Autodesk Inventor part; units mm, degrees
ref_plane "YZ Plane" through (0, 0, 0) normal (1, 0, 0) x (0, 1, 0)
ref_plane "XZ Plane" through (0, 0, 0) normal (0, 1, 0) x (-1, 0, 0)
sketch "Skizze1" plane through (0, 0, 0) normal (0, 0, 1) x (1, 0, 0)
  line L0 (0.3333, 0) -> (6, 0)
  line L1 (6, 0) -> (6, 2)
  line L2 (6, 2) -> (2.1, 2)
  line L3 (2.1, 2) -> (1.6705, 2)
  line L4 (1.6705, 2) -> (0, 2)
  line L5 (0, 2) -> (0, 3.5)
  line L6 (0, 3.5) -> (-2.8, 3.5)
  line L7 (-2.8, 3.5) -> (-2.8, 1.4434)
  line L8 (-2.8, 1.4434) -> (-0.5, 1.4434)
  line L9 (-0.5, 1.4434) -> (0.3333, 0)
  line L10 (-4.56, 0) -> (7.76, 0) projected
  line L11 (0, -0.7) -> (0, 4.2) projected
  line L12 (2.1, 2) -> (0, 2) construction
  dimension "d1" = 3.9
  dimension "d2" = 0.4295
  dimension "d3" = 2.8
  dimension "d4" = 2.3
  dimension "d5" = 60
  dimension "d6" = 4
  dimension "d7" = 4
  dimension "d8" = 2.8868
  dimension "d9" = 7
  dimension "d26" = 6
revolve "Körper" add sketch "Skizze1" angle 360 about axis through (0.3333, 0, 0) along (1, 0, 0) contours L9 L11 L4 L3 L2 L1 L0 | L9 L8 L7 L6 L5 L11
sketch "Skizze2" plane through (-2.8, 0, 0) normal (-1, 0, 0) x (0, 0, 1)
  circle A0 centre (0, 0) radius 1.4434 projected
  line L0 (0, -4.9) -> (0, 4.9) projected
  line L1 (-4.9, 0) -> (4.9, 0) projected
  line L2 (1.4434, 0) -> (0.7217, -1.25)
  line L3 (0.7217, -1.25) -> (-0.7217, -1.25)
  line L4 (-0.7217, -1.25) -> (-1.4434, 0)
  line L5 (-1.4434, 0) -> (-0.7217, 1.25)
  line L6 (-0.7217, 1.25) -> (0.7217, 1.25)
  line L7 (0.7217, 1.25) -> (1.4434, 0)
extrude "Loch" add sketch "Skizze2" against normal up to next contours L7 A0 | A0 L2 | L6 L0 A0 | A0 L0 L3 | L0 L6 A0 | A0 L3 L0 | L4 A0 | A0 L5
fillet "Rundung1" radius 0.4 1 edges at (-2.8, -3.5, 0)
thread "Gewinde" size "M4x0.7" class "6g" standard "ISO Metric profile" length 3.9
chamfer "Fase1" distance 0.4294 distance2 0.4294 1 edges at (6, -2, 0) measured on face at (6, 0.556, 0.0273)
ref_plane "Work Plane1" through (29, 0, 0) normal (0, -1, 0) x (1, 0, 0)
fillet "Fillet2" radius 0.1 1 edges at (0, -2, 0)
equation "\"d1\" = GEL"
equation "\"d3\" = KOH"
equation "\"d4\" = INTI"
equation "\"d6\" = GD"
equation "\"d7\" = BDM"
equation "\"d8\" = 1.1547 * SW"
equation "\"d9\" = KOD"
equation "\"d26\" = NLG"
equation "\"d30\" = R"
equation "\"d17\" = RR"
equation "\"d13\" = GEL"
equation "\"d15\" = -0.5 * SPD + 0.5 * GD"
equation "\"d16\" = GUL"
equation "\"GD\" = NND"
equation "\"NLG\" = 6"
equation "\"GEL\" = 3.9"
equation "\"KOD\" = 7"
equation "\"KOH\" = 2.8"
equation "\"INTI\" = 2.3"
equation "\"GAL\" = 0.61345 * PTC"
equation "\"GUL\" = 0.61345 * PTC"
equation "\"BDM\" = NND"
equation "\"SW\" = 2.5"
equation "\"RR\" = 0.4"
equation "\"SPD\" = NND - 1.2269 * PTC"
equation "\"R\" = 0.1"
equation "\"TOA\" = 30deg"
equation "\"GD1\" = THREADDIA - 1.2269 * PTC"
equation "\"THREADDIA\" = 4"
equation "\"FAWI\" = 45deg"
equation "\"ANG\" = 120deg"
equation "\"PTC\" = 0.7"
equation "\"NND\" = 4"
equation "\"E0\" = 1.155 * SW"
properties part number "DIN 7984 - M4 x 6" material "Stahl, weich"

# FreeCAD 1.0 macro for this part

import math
import FreeCAD as App
import Part
import Sketcher
Q = App.Units.Quantity


def edges_at(feature, points):
    """Names of the edges that pass closest to the given points."""
    edges = feature.Shape.Edges
    near = lambda p: min(range(len(edges)), key=lambda i: edges[i].distToShape(Part.Vertex(*p))[0])
    return sorted({f"Edge{near(p) + 1}" for p in points})

doc = App.newDocument("Part")
body = doc.addObject("PartDesign::Body", "Body")

# Sketch on XY plane
sketch1 = body.newObject("Sketcher::SketchObject", "Sketch")
sketch1.AttachmentSupport = (doc.getObject("XY_Plane"), [""])
sketch1.MapMode = "FlatFace"
sketch1.addGeometry([
    Part.LineSegment(App.Vector(0.3333, 0, 0), App.Vector(6, 0, 0)),  # 0
    Part.LineSegment(App.Vector(6, 0, 0), App.Vector(6, 2, 0)),  # 1
    Part.LineSegment(App.Vector(6, 2, 0), App.Vector(0, 2, 0)),  # 2
    Part.LineSegment(App.Vector(0, 2, 0), App.Vector(0, 3.5, 0)),  # 3
    Part.LineSegment(App.Vector(0, 3.5, 0), App.Vector(-2.8, 3.5, 0)),  # 4
    Part.LineSegment(App.Vector(-2.8, 3.5, 0), App.Vector(-2.8, 1.4434, 0)),  # 5
    Part.LineSegment(App.Vector(-2.8, 1.4434, 0), App.Vector(-0.5, 1.4434, 0)),  # 6
    Part.LineSegment(App.Vector(-0.5, 1.4434, 0), App.Vector(0.3333, 0, 0)),  # 7
], False)
sketch1.addConstraint([
    Sketcher.Constraint("Coincident", 0, 2, 1, 1),
    Sketcher.Constraint("Coincident", 1, 2, 2, 1),
    Sketcher.Constraint("Coincident", 2, 2, 3, 1),
    Sketcher.Constraint("Coincident", 3, 2, 4, 1),
    Sketcher.Constraint("Coincident", 4, 2, 5, 1),
    Sketcher.Constraint("Coincident", 5, 2, 6, 1),
    Sketcher.Constraint("Coincident", 6, 2, 7, 1),
    Sketcher.Constraint("Coincident", 7, 2, 0, 1),
    Sketcher.Constraint("Horizontal", 0),
    Sketcher.Constraint("Vertical", 1),
    Sketcher.Constraint("Horizontal", 2),
    Sketcher.Constraint("Vertical", 3),
    Sketcher.Constraint("Horizontal", 4),
    Sketcher.Constraint("Vertical", 5),
    Sketcher.Constraint("Horizontal", 6),
    Sketcher.Constraint("PointOnObject", 0, 2, -1),
    Sketcher.Constraint("PointOnObject", 2, 2, -2),
    Sketcher.Constraint("DistanceX", 2, 2, 2, 1, Q("6 mm")),
    Sketcher.Constraint("DistanceX", 4, 2, 4, 1, Q("2.8 mm")),
    Sketcher.Constraint("DistanceX", 6, 1, 6, 2, Q("2.3 mm")),
    Sketcher.Constraint("DistanceY", 1, 1, 1, 2, Q("2 mm")),
    Sketcher.Constraint("DistanceY", 3, 1, 3, 2, Q("1.5 mm")),
    Sketcher.Constraint("DistanceX", 0, 1, 0, 2, Q("5.6667 mm")),
    Sketcher.Constraint("DistanceY", 5, 2, 5, 1, Q("2.0566 mm")),
])
revolution = body.newObject("PartDesign::Revolution", "Revolution")
revolution.Profile = sketch1
revolution.ReferenceAxis = (sketch1, ["H_Axis"])
revolution.Angle = 360

# Sketch on YZ plane
sketch2 = body.newObject("Sketcher::SketchObject", "Sketch001")
sketch2.AttachmentSupport = (doc.getObject("YZ_Plane"), [""])
sketch2.MapMode = "FlatFace"
sketch2.AttachmentOffset = App.Placement(App.Vector(0, 0, -2.8), App.Rotation())
sketch2.addGeometry([
    Part.LineSegment(App.Vector(1.25, 0.7217, 0), App.Vector(0, 1.4434, 0)),  # 0
    Part.ArcOfCircle(Part.Circle(App.Vector(0, 0, 0), App.Vector(0, 0, 1), 1.4434), math.radians(30.000418), math.radians(90)),  # 1
    Part.ArcOfCircle(Part.Circle(App.Vector(0, 0, 0), App.Vector(0, 0, 1), 1.4434), math.radians(90), math.radians(149.999582)),  # 2
    Part.LineSegment(App.Vector(0, 1.4434, 0), App.Vector(-1.25, 0.7217, 0)),  # 3
    Part.ArcOfCircle(Part.Circle(App.Vector(0, 0, 0), App.Vector(0, 0, 1), 1.4434), math.radians(-30.000418), math.radians(30.000418)),  # 4
    Part.LineSegment(App.Vector(1.25, 0.7217, 0), App.Vector(1.25, -0.7217, 0)),  # 5
    Part.LineSegment(App.Vector(-1.25, 0.7217, 0), App.Vector(-1.25, -0.7217, 0)),  # 6
    Part.ArcOfCircle(Part.Circle(App.Vector(0, 0, 0), App.Vector(0, 0, 1), 1.4434), math.radians(149.999582), math.radians(210.000418)),  # 7
    Part.LineSegment(App.Vector(-1.25, -0.7217, 0), App.Vector(0, -1.4434, 0)),  # 8
    Part.ArcOfCircle(Part.Circle(App.Vector(0, 0, 0), App.Vector(0, 0, 1), 1.4434), math.radians(-149.999582), math.radians(-90)),  # 9
    Part.ArcOfCircle(Part.Circle(App.Vector(0, 0, 0), App.Vector(0, 0, 1), 1.4434), math.radians(-90), math.radians(-30.000418)),  # 10
    Part.LineSegment(App.Vector(0, -1.4434, 0), App.Vector(1.25, -0.7217, 0)),  # 11
], False)
sketch2.addConstraint([
    Sketcher.Constraint("Coincident", 0, 1, 1, 1),
    Sketcher.Constraint("Coincident", 1, 2, 0, 2),
    Sketcher.Constraint("Coincident", 2, 1, 3, 1),
    Sketcher.Constraint("Coincident", 3, 2, 2, 2),
    Sketcher.Constraint("Coincident", 4, 1, 5, 2),
    Sketcher.Constraint("Coincident", 5, 1, 4, 2),
    Sketcher.Constraint("Coincident", 6, 1, 7, 1),
    Sketcher.Constraint("Coincident", 7, 2, 6, 2),
    Sketcher.Constraint("Coincident", 8, 1, 9, 1),
    Sketcher.Constraint("Coincident", 9, 2, 8, 2),
    Sketcher.Constraint("Coincident", 10, 1, 11, 1),
    Sketcher.Constraint("Coincident", 11, 2, 10, 2),
    Sketcher.Constraint("Vertical", 5),
    Sketcher.Constraint("Vertical", 6),
    Sketcher.Constraint("Coincident", 1, 3, -1, 1),
    Sketcher.Constraint("Coincident", 2, 3, -1, 1),
    Sketcher.Constraint("Coincident", 4, 3, -1, 1),
    Sketcher.Constraint("Coincident", 7, 3, -1, 1),
    Sketcher.Constraint("Coincident", 9, 3, -1, 1),
    Sketcher.Constraint("Coincident", 10, 3, -1, 1),
    Sketcher.Constraint("Coincident", 2, 1, 1, 2),
    Sketcher.Constraint("Coincident", 5, 1, 0, 1),
    Sketcher.Constraint("Coincident", 6, 1, 3, 2),
    Sketcher.Constraint("Coincident", 8, 1, 7, 2),
    Sketcher.Constraint("Coincident", 10, 1, 9, 2),
    Sketcher.Constraint("PointOnObject", 1, 2, -2),
    Sketcher.Constraint("PointOnObject", 9, 2, -2),
    Sketcher.Constraint("Parallel", 0, 8),
    Sketcher.Constraint("Parallel", 3, 11),
    Sketcher.Constraint("Angle", 0, Q("149.9996 deg")),
    Sketcher.Constraint("Radius", 1, Q("1.4434 mm")),
])
pad1 = body.newObject("PartDesign::Pad", "Pad")
pad1.Profile = sketch2
pad1.Type = "UpToFirst"
doc.recompute()

fillet = body.newObject("PartDesign::Fillet", "Fillet")
fillet.Base = (pad1, edges_at(pad1, [(-2.8, -3.5, 0)]))
fillet.Radius = 0.4
doc.recompute()

chamfer = body.newObject("PartDesign::Chamfer", "Chamfer")
chamfer.Base = (fillet, edges_at(fillet, [(6, -2, 0)]))
chamfer.ChamferType = "Two distances"
chamfer.Size = 0.4294
chamfer.Size2 = 0.4294
doc.recompute()

fillet2 = body.newObject("PartDesign::Fillet", "Fillet001")
fillet2.Base = (chamfer, edges_at(chamfer, [(0, -2, 0)]))
fillet2.Radius = 0.1

doc.recompute()
